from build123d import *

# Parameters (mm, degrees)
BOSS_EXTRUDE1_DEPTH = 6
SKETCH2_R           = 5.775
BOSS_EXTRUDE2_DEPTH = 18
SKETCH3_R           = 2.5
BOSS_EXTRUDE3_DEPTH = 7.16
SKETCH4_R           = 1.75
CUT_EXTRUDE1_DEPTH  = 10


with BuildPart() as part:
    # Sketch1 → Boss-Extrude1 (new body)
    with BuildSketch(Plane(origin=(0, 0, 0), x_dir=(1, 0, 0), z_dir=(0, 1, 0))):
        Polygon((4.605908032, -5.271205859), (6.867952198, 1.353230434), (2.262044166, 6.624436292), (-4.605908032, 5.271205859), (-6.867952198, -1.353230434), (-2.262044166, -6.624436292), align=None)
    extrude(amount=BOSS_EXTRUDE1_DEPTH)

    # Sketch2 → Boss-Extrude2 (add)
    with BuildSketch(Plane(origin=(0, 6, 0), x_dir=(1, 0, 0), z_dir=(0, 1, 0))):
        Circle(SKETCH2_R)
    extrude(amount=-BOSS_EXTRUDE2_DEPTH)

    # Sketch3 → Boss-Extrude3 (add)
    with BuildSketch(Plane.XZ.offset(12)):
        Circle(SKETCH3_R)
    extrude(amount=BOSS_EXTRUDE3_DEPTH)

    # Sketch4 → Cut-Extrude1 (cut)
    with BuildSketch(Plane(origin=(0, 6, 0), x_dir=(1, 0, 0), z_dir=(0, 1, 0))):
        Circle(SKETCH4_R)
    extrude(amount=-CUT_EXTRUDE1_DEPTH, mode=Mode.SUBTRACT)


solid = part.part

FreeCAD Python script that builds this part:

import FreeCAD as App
import Part
import Sketcher

V = App.Vector

doc = App.newDocument("Part")
body = doc.addObject("PartDesign::Body", "Body")

# Sketch on XZ plane
sketch1 = doc.addObject("Sketcher::SketchObject", "Sketch")
body.addObject(sketch1)
sketch1.AttachmentSupport = (doc.XZ_Plane, [""])
sketch1.MapMode = "FlatFace"
sketch1.addGeometry(Part.LineSegment(V(4.605908, 5.271206, 0), V(6.867952, -1.35323, 0)), False)
sketch1.addGeometry(Part.LineSegment(V(6.867952, -1.35323, 0), V(2.262044, -6.624436, 0)), False)
sketch1.addGeometry(Part.LineSegment(V(2.262044, -6.624436, 0), V(-4.605908, -5.271206, 0)), False)
sketch1.addGeometry(Part.LineSegment(V(-4.605908, -5.271206, 0), V(-6.867952, 1.35323, 0)), False)
sketch1.addGeometry(Part.LineSegment(V(-6.867952, 1.35323, 0), V(-2.262044, 6.624436, 0)), False)
sketch1.addGeometry(Part.LineSegment(V(-2.262044, 6.624436, 0), V(4.605908, 5.271206, 0)), False)
sketch1.addConstraint(Sketcher.Constraint("Coincident", 0, 2, 1, 1))
sketch1.addConstraint(Sketcher.Constraint("Coincident", 1, 2, 2, 1))
sketch1.addConstraint(Sketcher.Constraint("Coincident", 2, 2, 3, 1))
sketch1.addConstraint(Sketcher.Constraint("Coincident", 3, 2, 4, 1))
sketch1.addConstraint(Sketcher.Constraint("Coincident", 4, 2, 5, 1))
sketch1.addConstraint(Sketcher.Constraint("Coincident", 5, 2, 0, 1))
sketch1.addConstraint(Sketcher.Constraint("Symmetric", 0, 2, 3, 2, -1, 1))
sketch1.addConstraint(Sketcher.Constraint("Symmetric", 1, 2, 4, 2, -1, 1))
sketch1.addConstraint(Sketcher.Constraint("Symmetric", 2, 2, 5, 2, -1, 1))
sketch1.addConstraint(Sketcher.Constraint("Equal", 0, 1))
sketch1.addConstraint(Sketcher.Constraint("Equal", 1, 2))
sketch1.addConstraint(Sketcher.Constraint("Distance", 0, 7.0))
sketch1.addConstraint(Sketcher.Constraint("DistanceY", 0, 2, -1, 1, 1.35323))
sketch1.addConstraint(Sketcher.Constraint("DistanceX", 2, 2, -1, 1, 4.605908))
sketch1.addConstraint(Sketcher.Constraint("DistanceX", 1, 2, 0, 2, 4.605908))
pad1 = doc.addObject("PartDesign::Pad", "Pad")
body.addObject(pad1)
pad1.Profile = sketch1
pad1.Length = 6
pad1.Reversed = True

# Sketch on XZ plane
sketch2 = doc.addObject("Sketcher::SketchObject", "Sketch001")
body.addObject(sketch2)
sketch2.AttachmentSupport = (doc.XZ_Plane, [""])
sketch2.MapMode = "FlatFace"
sketch2.AttachmentOffset = App.Placement(V(0, 0, -6), App.Rotation())
sketch2.addGeometry(Part.Circle(V(0, 0, 0), V(0, 0, 1), 5.775), False)
sketch2.addConstraint(Sketcher.Constraint("Coincident", 0, 3, -1, 1))
sketch2.addConstraint(Sketcher.Constraint("Diameter", 0, 11.55))
pad2 = doc.addObject("PartDesign::Pad", "Pad001")
body.addObject(pad2)
pad2.Profile = sketch2
pad2.Length = 18

# Sketch on XZ plane
sketch3 = doc.addObject("Sketcher::SketchObject", "Sketch002")
body.addObject(sketch3)
sketch3.AttachmentSupport = (doc.XZ_Plane, [""])
sketch3.MapMode = "FlatFace"
sketch3.AttachmentOffset = App.Placement(V(0, 0, 12), App.Rotation())
sketch3.addGeometry(Part.Circle(V(0, 0, 0), V(0, 0, 1), 2.5), False)
sketch3.addConstraint(Sketcher.Constraint("Coincident", 0, 3, -1, 1))
sketch3.addConstraint(Sketcher.Constraint("Diameter", 0, 5.0))
pad3 = doc.addObject("PartDesign::Pad", "Pad002")
body.addObject(pad3)
pad3.Profile = sketch3
pad3.Length = 7.16

# Sketch on XZ plane
sketch4 = doc.addObject("Sketcher::SketchObject", "Sketch003")
body.addObject(sketch4)
sketch4.AttachmentSupport = (doc.XZ_Plane, [""])
sketch4.MapMode = "FlatFace"
sketch4.AttachmentOffset = App.Placement(V(0, 0, -6), App.Rotation())
sketch4.addGeometry(Part.Circle(V(0, 0, 0), V(0, 0, 1), 1.75), False)
sketch4.addConstraint(Sketcher.Constraint("Coincident", 0, 3, -1, 1))
sketch4.addConstraint(Sketcher.Constraint("Diameter", 0, 3.5))
pocket1 = doc.addObject("PartDesign::Pocket", "Pocket")
body.addObject(pocket1)
pocket1.Profile = sketch4
pocket1.Length = 10
pocket1.Reversed = True

doc.recompute()
